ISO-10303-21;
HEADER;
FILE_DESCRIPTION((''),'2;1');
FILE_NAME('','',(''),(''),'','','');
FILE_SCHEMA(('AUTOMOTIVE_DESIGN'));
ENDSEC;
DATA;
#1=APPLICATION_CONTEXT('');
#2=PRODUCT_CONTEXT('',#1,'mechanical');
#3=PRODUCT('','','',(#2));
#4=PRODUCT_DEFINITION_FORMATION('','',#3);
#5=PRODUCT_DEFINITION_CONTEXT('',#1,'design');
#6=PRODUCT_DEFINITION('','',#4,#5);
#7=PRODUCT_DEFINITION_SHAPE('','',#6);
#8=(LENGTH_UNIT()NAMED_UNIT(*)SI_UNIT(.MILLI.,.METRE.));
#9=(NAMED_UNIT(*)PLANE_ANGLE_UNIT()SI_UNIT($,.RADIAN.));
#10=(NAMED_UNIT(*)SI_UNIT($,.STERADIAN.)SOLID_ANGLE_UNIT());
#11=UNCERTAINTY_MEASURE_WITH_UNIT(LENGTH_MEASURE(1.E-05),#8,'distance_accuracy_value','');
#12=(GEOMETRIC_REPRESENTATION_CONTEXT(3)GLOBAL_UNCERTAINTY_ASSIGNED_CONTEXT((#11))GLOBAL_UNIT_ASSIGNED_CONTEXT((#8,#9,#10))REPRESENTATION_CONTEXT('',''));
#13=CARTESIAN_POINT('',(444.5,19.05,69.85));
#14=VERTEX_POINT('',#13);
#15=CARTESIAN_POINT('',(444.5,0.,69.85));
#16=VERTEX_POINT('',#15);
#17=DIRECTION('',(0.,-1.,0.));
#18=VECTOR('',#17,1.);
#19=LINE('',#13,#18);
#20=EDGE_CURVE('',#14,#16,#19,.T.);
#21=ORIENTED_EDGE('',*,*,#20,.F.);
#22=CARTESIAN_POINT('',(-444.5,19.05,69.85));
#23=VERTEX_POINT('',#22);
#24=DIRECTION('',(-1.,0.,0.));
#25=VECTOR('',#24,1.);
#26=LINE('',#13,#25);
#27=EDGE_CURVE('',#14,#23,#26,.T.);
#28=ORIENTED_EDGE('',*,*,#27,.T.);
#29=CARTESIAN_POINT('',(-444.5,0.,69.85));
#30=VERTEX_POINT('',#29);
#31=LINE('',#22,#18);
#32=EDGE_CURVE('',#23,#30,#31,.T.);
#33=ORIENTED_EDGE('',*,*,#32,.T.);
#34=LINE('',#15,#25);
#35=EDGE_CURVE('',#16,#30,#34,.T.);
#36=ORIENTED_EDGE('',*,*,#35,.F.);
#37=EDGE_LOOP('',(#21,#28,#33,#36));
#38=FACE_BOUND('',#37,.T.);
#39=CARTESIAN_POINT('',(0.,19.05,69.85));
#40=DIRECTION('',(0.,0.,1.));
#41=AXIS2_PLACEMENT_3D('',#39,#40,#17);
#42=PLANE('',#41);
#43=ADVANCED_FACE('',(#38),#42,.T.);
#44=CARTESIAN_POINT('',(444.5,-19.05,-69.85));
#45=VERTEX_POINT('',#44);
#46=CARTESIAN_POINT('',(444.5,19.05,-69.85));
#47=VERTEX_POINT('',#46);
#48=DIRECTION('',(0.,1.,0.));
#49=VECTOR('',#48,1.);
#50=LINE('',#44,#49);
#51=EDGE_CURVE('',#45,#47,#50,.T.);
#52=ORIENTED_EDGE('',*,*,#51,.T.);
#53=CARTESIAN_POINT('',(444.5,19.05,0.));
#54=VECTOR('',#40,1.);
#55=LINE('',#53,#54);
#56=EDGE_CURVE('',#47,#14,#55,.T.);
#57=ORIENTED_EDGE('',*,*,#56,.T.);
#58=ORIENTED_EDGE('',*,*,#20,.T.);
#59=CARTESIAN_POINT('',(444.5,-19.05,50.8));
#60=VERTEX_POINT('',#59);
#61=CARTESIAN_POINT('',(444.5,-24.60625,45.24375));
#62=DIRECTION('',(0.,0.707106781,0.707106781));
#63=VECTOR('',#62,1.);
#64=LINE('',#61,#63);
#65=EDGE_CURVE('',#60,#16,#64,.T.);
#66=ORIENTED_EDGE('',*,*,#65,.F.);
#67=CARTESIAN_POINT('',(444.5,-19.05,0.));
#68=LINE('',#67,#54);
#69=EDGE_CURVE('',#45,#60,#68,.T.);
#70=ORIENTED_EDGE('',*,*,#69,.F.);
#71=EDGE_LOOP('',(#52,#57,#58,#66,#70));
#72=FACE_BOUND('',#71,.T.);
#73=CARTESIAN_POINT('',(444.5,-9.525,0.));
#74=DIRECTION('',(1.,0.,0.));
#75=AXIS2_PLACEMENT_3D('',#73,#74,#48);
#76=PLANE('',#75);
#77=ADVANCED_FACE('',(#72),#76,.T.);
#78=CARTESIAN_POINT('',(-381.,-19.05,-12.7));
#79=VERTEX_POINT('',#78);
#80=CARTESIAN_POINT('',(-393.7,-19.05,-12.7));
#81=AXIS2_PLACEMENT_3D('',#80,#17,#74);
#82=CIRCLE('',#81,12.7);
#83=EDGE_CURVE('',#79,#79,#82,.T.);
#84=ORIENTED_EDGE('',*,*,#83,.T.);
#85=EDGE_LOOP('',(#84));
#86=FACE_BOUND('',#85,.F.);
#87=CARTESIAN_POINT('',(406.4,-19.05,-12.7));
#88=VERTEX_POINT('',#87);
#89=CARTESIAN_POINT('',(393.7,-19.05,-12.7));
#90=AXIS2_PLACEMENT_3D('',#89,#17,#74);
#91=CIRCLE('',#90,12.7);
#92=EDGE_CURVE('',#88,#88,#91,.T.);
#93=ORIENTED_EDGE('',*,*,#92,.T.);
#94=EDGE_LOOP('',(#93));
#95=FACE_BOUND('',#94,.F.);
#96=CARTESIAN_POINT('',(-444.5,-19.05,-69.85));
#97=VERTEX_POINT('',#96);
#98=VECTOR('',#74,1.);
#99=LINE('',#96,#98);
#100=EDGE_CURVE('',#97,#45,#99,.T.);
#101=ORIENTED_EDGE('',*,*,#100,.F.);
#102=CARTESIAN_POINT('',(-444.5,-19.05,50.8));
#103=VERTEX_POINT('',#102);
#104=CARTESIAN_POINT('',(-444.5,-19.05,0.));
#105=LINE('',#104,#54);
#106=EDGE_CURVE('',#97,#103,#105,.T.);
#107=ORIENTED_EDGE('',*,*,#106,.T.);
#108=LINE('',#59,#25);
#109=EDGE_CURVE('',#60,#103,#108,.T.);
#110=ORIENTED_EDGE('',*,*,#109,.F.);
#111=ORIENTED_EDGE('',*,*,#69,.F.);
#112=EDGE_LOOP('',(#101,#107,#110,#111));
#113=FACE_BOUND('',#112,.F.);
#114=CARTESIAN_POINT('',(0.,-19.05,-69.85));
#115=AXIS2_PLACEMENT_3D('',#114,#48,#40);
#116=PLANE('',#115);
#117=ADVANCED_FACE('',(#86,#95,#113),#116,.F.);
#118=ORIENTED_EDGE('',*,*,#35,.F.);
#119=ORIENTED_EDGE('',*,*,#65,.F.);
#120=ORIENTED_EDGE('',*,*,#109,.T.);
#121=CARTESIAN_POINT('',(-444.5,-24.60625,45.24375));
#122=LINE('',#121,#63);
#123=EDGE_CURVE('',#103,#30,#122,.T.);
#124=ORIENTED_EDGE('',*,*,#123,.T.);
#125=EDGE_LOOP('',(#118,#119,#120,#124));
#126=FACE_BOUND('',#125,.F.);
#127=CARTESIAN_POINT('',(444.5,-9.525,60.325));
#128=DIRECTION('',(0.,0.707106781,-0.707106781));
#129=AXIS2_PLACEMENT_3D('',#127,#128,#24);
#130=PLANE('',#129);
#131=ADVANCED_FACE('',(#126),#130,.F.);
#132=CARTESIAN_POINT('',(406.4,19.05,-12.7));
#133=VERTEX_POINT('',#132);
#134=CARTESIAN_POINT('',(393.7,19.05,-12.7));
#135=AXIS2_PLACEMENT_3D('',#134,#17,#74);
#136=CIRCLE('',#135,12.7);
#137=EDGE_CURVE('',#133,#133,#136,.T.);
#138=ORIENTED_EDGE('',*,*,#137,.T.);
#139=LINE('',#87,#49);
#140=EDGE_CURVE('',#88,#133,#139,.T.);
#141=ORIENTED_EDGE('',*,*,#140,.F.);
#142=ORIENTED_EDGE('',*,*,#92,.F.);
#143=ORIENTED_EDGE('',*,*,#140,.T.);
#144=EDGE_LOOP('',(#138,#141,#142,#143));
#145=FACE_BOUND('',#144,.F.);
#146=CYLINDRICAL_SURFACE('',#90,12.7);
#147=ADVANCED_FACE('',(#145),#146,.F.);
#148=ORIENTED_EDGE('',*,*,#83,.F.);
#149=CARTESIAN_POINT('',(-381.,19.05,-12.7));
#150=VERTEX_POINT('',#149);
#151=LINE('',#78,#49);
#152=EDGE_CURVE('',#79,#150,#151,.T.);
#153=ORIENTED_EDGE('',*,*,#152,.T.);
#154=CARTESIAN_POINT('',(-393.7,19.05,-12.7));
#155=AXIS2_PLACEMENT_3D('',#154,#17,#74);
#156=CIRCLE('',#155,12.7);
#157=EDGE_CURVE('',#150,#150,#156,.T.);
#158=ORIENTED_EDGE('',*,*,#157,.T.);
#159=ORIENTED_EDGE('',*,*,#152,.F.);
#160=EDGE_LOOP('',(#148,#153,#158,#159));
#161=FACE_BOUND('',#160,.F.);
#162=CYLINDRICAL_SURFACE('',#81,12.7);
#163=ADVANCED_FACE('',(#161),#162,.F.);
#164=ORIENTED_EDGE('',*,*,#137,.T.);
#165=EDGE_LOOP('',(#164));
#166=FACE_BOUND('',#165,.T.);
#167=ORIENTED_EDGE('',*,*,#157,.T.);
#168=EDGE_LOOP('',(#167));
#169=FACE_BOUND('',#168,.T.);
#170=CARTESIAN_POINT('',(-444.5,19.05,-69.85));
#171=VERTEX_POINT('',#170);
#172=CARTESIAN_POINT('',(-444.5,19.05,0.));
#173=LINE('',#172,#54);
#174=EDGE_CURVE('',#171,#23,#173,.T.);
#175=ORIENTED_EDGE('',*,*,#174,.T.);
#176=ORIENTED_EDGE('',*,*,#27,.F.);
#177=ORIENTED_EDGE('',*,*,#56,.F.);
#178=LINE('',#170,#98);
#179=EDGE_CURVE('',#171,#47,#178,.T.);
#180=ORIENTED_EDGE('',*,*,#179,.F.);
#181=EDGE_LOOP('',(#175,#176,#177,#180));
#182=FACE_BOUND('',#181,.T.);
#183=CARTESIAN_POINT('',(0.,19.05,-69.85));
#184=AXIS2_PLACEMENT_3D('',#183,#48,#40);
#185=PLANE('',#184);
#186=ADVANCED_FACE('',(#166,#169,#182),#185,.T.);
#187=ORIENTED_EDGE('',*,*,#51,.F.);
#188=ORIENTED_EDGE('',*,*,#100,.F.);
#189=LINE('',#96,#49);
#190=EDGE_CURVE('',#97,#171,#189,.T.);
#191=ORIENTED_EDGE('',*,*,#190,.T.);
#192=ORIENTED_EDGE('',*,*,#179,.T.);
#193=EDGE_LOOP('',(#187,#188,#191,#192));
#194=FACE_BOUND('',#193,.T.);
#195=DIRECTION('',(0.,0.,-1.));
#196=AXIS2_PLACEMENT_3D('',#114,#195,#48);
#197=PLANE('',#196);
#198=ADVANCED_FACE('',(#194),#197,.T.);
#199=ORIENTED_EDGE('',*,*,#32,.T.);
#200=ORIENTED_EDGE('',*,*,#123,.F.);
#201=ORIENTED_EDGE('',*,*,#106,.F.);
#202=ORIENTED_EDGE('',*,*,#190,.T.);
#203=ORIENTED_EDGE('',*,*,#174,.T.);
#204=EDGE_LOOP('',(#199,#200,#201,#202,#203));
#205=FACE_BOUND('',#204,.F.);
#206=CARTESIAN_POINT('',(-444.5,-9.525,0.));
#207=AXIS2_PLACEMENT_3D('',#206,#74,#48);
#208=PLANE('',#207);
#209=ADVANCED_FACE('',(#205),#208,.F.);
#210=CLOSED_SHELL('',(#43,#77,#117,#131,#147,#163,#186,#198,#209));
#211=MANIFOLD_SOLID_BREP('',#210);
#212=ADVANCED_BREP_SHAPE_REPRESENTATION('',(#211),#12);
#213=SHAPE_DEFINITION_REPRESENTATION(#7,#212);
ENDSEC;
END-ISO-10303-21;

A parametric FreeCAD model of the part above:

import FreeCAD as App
import Part
import Sketcher
Q = App.Units.Quantity


def edges_at(feature, points):
    """Names of the edges that pass closest to the given points."""
    edges = feature.Shape.Edges
    near = lambda p: min(range(len(edges)), key=lambda i: edges[i].distToShape(Part.Vertex(*p))[0])
    return sorted({f"Edge{near(p) + 1}" for p in points})

doc = App.newDocument("Part")
params = doc.addObject("Spreadsheet::Sheet", "Params")
for row, (alias, value) in enumerate([
    ("sketch1_width", "1.5 in"),
    ("sketch1_height", "5.5 in"),
    ("pad1_length", "35 in"),
    ("chamfer_size", "0.75 in"),
    ("sketch2_diameter", "1 in"),
], start=1):
    params.set(f"A{row}", alias)
    params.set(f"B{row}", "=" + value)
    params.setAlias(f"B{row}", alias)

body = doc.addObject("PartDesign::Body", "Body")

sketch1 = body.newObject("Sketcher::SketchObject", "Sketch")
sketch1.AttachmentSupport = (doc.getObject("YZ_Plane"), [""])
sketch1.MapMode = "FlatFace"
sketch1.addGeometry([
    Part.LineSegment(App.Vector(-19, 70, 0), App.Vector(-19, -70, 0)),
    Part.LineSegment(App.Vector(-19, -70, 0), App.Vector(19, -70, 0)),
    Part.LineSegment(App.Vector(19, -70, 0), App.Vector(19, 70, 0)),
    Part.LineSegment(App.Vector(19, 70, 0), App.Vector(-19, 70, 0)),
], False)
sketch1.addConstraint([
    Sketcher.Constraint("Coincident", 0, 2, 1, 1),
    Sketcher.Constraint("Coincident", 1, 2, 2, 1),
    Sketcher.Constraint("Coincident", 2, 2, 3, 1),
    Sketcher.Constraint("Coincident", 3, 2, 0, 1),
    Sketcher.Constraint("Vertical", 0),
    Sketcher.Constraint("Horizontal", 1),
    Sketcher.Constraint("Vertical", 2),
    Sketcher.Constraint("Horizontal", 3),
    Sketcher.Constraint("Symmetric", 0, 2, 2, 2, -1, 1),
    Sketcher.Constraint("DistanceX", 1, 1, 1, 2, Q("1.5 in")),
    Sketcher.Constraint("DistanceY", 0, 2, 0, 1, Q("5.5 in")),
])
sketch1.setExpression("Constraints[9]", "Params.sketch1_width")
sketch1.setExpression("Constraints[10]", "Params.sketch1_height")
pad1 = body.newObject("PartDesign::Pad", "Pad")
pad1.Profile = sketch1
pad1.setExpression("Length", "Params.pad1_length")
pad1.Midplane = True
doc.recompute()

chamfer = body.newObject("PartDesign::Chamfer", "Chamfer")
chamfer.Base = (pad1, edges_at(pad1, [(0, -19.05, 69.85)]))
chamfer.setExpression("Size", "Params.chamfer_size")

sketch2 = body.newObject("Sketcher::SketchObject", "Sketch001")
sketch2.AttachmentSupport = (doc.getObject("XZ_Plane"), [""])
sketch2.MapMode = "FlatFace"
sketch2.AttachmentOffset = App.Placement(App.Vector(0, 0, 0.75 * 25.4), App.Rotation())
sketch2.addGeometry([
    Part.Circle(App.Vector(-394, -13, 0), App.Vector(0, 0, 1), 13),
    Part.Circle(App.Vector(394, -13, 0), App.Vector(0, 0, 1), 13),
], False)
sketch2.addConstraint([
    Sketcher.Constraint("Equal", 0, 1),
    Sketcher.Constraint("Symmetric", 0, 3, 1, 3, -2),
    Sketcher.Constraint("Diameter", 0, Q("1 in")),
    Sketcher.Constraint("DistanceX", 0, 3, 1, 3, Q("31 in")),
    Sketcher.Constraint("DistanceY", 0, 3, -1, 1, Q("0.5 in")),
])
sketch2.setExpression("Constraints[2]", "Params.sketch2_diameter")
pocket1 = body.newObject("PartDesign::Pocket", "Pocket")
pocket1.Profile = sketch2
pocket1.Type = "ThroughAll"

doc.recompute()
